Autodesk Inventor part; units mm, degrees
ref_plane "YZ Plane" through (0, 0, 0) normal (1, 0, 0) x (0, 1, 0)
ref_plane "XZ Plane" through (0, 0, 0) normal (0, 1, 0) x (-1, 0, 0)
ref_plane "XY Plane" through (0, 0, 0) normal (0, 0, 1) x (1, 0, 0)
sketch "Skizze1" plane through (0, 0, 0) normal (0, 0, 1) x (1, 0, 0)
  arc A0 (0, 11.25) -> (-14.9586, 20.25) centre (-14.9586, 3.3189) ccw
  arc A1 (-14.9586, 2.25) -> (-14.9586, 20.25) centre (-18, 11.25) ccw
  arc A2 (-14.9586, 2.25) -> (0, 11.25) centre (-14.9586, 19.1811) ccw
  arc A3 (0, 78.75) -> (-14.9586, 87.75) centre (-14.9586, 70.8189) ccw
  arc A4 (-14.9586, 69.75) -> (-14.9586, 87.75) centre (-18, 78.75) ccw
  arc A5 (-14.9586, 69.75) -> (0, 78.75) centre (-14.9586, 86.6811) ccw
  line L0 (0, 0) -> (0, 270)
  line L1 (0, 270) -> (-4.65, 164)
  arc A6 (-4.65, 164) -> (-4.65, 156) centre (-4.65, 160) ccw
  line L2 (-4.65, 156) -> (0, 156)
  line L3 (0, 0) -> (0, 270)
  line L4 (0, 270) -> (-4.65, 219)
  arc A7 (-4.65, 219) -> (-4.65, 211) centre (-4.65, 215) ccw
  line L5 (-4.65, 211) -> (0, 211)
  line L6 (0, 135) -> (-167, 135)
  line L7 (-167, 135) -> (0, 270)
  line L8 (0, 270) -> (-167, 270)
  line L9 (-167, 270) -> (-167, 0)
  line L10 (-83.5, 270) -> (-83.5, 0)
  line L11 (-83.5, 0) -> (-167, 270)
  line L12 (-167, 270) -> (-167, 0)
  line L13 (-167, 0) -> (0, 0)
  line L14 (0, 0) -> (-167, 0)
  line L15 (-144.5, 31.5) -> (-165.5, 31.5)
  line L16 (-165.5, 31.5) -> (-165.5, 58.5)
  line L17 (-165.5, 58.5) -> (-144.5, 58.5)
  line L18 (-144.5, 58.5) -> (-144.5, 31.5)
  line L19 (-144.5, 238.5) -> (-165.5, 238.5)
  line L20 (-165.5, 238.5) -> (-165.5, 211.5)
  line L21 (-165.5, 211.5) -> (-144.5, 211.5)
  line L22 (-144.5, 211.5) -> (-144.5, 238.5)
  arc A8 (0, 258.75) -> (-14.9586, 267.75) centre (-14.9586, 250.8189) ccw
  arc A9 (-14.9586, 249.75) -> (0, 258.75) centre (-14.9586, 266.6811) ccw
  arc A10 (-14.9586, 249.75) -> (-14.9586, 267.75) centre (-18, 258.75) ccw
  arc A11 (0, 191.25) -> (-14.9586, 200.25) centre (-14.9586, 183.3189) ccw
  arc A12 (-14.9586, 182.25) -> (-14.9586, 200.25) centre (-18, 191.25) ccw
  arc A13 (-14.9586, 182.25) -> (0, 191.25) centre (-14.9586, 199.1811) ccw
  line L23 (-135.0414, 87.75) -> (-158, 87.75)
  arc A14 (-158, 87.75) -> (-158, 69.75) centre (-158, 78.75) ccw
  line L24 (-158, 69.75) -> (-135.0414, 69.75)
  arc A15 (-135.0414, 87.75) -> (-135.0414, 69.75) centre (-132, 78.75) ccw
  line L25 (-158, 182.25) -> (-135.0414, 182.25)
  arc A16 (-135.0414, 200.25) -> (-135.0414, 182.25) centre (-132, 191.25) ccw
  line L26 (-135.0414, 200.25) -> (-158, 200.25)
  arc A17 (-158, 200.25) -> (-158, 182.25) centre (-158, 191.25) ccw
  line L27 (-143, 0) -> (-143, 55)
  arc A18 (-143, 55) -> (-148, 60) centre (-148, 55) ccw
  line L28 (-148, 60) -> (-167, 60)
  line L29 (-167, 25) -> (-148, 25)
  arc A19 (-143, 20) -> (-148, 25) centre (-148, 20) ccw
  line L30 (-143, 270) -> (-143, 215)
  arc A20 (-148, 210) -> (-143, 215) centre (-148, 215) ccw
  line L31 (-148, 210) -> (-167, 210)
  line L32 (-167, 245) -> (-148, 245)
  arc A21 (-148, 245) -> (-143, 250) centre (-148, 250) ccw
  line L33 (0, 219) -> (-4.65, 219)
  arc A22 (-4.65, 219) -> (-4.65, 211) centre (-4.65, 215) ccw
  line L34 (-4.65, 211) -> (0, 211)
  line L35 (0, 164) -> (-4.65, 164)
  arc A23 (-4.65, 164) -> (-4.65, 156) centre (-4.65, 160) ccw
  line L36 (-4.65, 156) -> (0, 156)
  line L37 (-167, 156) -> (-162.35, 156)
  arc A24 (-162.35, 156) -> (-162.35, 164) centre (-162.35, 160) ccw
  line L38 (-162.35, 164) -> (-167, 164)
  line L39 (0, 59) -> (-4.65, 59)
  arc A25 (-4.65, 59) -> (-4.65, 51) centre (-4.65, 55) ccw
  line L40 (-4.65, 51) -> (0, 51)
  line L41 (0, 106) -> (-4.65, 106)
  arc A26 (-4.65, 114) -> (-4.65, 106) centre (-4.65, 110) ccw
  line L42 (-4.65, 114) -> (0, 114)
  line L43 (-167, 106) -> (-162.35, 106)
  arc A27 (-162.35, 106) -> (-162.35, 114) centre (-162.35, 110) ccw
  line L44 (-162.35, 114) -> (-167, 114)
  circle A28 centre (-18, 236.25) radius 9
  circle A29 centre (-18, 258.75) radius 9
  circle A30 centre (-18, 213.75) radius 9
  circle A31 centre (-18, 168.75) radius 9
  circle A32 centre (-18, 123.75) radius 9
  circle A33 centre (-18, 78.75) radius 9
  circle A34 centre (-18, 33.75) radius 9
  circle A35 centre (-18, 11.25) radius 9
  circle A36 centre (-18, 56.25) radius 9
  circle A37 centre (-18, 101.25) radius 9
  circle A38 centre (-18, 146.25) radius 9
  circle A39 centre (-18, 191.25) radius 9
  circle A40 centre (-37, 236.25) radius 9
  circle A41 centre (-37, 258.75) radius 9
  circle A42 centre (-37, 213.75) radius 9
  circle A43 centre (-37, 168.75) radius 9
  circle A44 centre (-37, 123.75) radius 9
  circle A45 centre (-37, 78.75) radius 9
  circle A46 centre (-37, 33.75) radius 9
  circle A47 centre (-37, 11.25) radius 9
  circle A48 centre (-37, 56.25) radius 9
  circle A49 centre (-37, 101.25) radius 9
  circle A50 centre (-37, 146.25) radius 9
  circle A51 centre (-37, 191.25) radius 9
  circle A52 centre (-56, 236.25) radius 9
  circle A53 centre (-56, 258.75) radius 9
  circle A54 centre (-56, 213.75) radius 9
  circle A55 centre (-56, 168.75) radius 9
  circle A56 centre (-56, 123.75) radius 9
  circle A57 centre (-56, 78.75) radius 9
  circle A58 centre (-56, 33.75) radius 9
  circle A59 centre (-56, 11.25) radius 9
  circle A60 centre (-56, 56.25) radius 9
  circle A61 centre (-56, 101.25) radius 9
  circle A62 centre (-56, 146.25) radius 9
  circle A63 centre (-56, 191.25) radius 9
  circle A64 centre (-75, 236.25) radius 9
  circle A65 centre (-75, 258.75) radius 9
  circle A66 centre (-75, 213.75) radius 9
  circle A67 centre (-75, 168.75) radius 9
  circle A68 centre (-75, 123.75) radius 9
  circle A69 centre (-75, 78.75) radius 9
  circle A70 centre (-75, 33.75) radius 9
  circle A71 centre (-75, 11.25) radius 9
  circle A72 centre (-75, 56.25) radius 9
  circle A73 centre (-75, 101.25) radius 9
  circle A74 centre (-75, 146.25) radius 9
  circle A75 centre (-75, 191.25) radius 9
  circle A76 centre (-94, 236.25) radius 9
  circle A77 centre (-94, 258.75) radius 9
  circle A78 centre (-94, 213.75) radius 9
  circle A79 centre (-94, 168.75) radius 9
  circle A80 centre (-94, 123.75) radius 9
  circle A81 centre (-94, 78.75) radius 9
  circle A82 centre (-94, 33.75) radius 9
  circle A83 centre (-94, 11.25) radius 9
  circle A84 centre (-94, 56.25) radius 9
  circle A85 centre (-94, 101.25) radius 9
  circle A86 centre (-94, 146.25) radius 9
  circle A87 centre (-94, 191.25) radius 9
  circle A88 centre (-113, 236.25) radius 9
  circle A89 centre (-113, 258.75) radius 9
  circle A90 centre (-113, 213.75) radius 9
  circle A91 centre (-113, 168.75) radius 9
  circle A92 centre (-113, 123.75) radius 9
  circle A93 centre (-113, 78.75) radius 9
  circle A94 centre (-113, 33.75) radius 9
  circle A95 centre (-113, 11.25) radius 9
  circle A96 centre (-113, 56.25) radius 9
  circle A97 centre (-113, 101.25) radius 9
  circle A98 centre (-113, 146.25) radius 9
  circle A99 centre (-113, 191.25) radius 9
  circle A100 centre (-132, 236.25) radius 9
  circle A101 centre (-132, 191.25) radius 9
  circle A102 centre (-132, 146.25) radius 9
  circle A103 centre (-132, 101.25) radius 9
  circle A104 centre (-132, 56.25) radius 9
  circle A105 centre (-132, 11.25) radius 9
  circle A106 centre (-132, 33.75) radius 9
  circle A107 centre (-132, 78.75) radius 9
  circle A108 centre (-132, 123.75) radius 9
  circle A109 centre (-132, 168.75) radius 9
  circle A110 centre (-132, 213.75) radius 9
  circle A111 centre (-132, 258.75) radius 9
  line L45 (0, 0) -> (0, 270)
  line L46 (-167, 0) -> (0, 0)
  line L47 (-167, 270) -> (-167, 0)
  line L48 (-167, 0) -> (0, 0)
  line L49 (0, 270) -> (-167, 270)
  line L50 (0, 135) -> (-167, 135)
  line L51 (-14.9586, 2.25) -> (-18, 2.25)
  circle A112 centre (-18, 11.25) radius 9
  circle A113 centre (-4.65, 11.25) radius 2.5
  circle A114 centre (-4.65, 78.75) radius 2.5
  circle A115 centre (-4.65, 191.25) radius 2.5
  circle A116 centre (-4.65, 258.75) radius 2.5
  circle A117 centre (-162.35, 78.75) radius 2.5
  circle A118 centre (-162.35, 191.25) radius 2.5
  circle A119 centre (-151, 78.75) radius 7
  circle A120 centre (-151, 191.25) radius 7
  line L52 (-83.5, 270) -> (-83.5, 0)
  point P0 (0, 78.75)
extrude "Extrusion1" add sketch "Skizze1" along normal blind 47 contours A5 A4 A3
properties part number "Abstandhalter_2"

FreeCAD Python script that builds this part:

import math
import FreeCAD as App
import Part
import Sketcher

V = App.Vector
Q = App.Units.Quantity

doc = App.newDocument("Part")
body = doc.addObject("PartDesign::Body", "Body")

sketch1 = doc.addObject("Sketcher::SketchObject", "Sketch")
body.addObject(sketch1)
sketch1.AttachmentSupport = (doc.XY_Plane, [""])
sketch1.MapMode = "FlatFace"
sketch1.addGeometry([
    Part.ArcOfCircle(Part.Circle(V(-15, 86.7, 0), V(0, 0, 1), 16.9), math.radians(-90), math.radians(-28)),
    Part.ArcOfCircle(Part.Circle(V(-15, 70.8, 0), V(0, 0, 1), 16.9), math.radians(28), math.radians(90)),
    Part.ArcOfCircle(Part.Circle(V(-18, 78.8, 0), V(0, 0, 1), 9.5), math.radians(-71), math.radians(71)),
    Part.Circle(V(-4.7, 78.8, 0), V(0, 0, 1), 2.5),
], False)
sketch1.addConstraint([
    Sketcher.Constraint("Coincident", 0, 2, 1, 1),
    Sketcher.Constraint("Coincident", 1, 2, 2, 2),
    Sketcher.Constraint("Coincident", 2, 1, 0, 1),
    Sketcher.Constraint("Equal", 0, 1),
    Sketcher.Constraint("PointOnObject", 0, 2, -2),
    Sketcher.Constraint("Horizontal", 2, 3, 3, 3),
    Sketcher.Constraint("Horizontal", 3, 3, 0, 2),
    Sketcher.Constraint("Vertical", 0, 3, 1, 3),
    Sketcher.Constraint("Vertical", 0, 3, 1, 2),
    Sketcher.Constraint("Diameter", 3, Q("5 mm")),
    Sketcher.Constraint("Radius", 2, Q("9.5 mm")),
    Sketcher.Constraint("DistanceX", 2, 3, -1, 1, Q("18 mm")),
    Sketcher.Constraint("Radius", 0, Q("16.931 mm")),
    Sketcher.Constraint("DistanceY", -1, 1, 2, 3, Q("78.75 mm")),
    Sketcher.Constraint("DistanceX", 3, 3, -1, 1, Q("4.65 mm")),
])
pad1 = doc.addObject("PartDesign::Pad", "Pad")
body.addObject(pad1)
pad1.Profile = sketch1
pad1.Length = 47

doc.recompute()
